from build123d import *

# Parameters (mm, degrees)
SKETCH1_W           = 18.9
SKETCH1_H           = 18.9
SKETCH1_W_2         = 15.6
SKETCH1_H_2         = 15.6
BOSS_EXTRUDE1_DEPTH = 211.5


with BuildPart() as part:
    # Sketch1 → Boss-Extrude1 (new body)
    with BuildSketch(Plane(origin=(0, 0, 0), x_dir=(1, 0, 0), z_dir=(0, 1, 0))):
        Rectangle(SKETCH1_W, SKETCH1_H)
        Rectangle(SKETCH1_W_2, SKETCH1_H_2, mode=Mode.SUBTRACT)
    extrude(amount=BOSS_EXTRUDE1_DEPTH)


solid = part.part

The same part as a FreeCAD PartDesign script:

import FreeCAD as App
import Part
import Sketcher


def add_polygon(sketch, points):
    """Adds a closed chain of lines whose ends are joined by coincident constraints."""
    first, n = sketch.GeometryCount, len(points)
    for a, b in zip(points, points[1:] + points[:1]):
        sketch.addGeometry(Part.LineSegment(App.Vector(*a, 0), App.Vector(*b, 0)), False)
    for i in range(n):
        sketch.addConstraint(Sketcher.Constraint("Coincident", first + i, 2, first + (i + 1) % n, 1))

doc = App.newDocument("Part")
body = doc.addObject("PartDesign::Body", "Body")

# Sketch on XZ plane
sketch1 = body.newObject("Sketcher::SketchObject", "Sketch")
sketch1.AttachmentSupport = (doc.getObject("XZ_Plane"), [""])
sketch1.MapMode = "FlatFace"
add_polygon(sketch1, [(-9, -9), (-9, 9), (9, 9), (9, -9)])  # lines 0-3
add_polygon(sketch1, [(8, 8), (-8, 8), (-8, -8), (8, -8)])  # lines 4-7
sketch1.addConstraint(Sketcher.Constraint("Vertical", 0))
sketch1.addConstraint(Sketcher.Constraint("Horizontal", 1))
sketch1.addConstraint(Sketcher.Constraint("Vertical", 2))
sketch1.addConstraint(Sketcher.Constraint("Horizontal", 3))
sketch1.addConstraint(Sketcher.Constraint("Horizontal", 4))
sketch1.addConstraint(Sketcher.Constraint("Vertical", 5))
sketch1.addConstraint(Sketcher.Constraint("Horizontal", 6))
sketch1.addConstraint(Sketcher.Constraint("Vertical", 7))
sketch1.addConstraint(Sketcher.Constraint("Symmetric", 0, 2, 2, 2, -1, 1))
sketch1.addConstraint(Sketcher.Constraint("Symmetric", 4, 2, 6, 2, -1, 1))
sketch1.addConstraint(Sketcher.Constraint("Equal", 3, 0))
sketch1.addConstraint(Sketcher.Constraint("Equal", 6, 5))
sketch1.addConstraint(Sketcher.Constraint("DistanceX", 1, 1, 1, 2, 18.9))
sketch1.addConstraint(Sketcher.Constraint("DistanceX", 4, 2, 4, 1, 15.6))
pad1 = body.newObject("PartDesign::Pad", "Pad")
pad1.Profile = sketch1
pad1.Length = 211.5
pad1.Reversed = True

doc.recompute()
